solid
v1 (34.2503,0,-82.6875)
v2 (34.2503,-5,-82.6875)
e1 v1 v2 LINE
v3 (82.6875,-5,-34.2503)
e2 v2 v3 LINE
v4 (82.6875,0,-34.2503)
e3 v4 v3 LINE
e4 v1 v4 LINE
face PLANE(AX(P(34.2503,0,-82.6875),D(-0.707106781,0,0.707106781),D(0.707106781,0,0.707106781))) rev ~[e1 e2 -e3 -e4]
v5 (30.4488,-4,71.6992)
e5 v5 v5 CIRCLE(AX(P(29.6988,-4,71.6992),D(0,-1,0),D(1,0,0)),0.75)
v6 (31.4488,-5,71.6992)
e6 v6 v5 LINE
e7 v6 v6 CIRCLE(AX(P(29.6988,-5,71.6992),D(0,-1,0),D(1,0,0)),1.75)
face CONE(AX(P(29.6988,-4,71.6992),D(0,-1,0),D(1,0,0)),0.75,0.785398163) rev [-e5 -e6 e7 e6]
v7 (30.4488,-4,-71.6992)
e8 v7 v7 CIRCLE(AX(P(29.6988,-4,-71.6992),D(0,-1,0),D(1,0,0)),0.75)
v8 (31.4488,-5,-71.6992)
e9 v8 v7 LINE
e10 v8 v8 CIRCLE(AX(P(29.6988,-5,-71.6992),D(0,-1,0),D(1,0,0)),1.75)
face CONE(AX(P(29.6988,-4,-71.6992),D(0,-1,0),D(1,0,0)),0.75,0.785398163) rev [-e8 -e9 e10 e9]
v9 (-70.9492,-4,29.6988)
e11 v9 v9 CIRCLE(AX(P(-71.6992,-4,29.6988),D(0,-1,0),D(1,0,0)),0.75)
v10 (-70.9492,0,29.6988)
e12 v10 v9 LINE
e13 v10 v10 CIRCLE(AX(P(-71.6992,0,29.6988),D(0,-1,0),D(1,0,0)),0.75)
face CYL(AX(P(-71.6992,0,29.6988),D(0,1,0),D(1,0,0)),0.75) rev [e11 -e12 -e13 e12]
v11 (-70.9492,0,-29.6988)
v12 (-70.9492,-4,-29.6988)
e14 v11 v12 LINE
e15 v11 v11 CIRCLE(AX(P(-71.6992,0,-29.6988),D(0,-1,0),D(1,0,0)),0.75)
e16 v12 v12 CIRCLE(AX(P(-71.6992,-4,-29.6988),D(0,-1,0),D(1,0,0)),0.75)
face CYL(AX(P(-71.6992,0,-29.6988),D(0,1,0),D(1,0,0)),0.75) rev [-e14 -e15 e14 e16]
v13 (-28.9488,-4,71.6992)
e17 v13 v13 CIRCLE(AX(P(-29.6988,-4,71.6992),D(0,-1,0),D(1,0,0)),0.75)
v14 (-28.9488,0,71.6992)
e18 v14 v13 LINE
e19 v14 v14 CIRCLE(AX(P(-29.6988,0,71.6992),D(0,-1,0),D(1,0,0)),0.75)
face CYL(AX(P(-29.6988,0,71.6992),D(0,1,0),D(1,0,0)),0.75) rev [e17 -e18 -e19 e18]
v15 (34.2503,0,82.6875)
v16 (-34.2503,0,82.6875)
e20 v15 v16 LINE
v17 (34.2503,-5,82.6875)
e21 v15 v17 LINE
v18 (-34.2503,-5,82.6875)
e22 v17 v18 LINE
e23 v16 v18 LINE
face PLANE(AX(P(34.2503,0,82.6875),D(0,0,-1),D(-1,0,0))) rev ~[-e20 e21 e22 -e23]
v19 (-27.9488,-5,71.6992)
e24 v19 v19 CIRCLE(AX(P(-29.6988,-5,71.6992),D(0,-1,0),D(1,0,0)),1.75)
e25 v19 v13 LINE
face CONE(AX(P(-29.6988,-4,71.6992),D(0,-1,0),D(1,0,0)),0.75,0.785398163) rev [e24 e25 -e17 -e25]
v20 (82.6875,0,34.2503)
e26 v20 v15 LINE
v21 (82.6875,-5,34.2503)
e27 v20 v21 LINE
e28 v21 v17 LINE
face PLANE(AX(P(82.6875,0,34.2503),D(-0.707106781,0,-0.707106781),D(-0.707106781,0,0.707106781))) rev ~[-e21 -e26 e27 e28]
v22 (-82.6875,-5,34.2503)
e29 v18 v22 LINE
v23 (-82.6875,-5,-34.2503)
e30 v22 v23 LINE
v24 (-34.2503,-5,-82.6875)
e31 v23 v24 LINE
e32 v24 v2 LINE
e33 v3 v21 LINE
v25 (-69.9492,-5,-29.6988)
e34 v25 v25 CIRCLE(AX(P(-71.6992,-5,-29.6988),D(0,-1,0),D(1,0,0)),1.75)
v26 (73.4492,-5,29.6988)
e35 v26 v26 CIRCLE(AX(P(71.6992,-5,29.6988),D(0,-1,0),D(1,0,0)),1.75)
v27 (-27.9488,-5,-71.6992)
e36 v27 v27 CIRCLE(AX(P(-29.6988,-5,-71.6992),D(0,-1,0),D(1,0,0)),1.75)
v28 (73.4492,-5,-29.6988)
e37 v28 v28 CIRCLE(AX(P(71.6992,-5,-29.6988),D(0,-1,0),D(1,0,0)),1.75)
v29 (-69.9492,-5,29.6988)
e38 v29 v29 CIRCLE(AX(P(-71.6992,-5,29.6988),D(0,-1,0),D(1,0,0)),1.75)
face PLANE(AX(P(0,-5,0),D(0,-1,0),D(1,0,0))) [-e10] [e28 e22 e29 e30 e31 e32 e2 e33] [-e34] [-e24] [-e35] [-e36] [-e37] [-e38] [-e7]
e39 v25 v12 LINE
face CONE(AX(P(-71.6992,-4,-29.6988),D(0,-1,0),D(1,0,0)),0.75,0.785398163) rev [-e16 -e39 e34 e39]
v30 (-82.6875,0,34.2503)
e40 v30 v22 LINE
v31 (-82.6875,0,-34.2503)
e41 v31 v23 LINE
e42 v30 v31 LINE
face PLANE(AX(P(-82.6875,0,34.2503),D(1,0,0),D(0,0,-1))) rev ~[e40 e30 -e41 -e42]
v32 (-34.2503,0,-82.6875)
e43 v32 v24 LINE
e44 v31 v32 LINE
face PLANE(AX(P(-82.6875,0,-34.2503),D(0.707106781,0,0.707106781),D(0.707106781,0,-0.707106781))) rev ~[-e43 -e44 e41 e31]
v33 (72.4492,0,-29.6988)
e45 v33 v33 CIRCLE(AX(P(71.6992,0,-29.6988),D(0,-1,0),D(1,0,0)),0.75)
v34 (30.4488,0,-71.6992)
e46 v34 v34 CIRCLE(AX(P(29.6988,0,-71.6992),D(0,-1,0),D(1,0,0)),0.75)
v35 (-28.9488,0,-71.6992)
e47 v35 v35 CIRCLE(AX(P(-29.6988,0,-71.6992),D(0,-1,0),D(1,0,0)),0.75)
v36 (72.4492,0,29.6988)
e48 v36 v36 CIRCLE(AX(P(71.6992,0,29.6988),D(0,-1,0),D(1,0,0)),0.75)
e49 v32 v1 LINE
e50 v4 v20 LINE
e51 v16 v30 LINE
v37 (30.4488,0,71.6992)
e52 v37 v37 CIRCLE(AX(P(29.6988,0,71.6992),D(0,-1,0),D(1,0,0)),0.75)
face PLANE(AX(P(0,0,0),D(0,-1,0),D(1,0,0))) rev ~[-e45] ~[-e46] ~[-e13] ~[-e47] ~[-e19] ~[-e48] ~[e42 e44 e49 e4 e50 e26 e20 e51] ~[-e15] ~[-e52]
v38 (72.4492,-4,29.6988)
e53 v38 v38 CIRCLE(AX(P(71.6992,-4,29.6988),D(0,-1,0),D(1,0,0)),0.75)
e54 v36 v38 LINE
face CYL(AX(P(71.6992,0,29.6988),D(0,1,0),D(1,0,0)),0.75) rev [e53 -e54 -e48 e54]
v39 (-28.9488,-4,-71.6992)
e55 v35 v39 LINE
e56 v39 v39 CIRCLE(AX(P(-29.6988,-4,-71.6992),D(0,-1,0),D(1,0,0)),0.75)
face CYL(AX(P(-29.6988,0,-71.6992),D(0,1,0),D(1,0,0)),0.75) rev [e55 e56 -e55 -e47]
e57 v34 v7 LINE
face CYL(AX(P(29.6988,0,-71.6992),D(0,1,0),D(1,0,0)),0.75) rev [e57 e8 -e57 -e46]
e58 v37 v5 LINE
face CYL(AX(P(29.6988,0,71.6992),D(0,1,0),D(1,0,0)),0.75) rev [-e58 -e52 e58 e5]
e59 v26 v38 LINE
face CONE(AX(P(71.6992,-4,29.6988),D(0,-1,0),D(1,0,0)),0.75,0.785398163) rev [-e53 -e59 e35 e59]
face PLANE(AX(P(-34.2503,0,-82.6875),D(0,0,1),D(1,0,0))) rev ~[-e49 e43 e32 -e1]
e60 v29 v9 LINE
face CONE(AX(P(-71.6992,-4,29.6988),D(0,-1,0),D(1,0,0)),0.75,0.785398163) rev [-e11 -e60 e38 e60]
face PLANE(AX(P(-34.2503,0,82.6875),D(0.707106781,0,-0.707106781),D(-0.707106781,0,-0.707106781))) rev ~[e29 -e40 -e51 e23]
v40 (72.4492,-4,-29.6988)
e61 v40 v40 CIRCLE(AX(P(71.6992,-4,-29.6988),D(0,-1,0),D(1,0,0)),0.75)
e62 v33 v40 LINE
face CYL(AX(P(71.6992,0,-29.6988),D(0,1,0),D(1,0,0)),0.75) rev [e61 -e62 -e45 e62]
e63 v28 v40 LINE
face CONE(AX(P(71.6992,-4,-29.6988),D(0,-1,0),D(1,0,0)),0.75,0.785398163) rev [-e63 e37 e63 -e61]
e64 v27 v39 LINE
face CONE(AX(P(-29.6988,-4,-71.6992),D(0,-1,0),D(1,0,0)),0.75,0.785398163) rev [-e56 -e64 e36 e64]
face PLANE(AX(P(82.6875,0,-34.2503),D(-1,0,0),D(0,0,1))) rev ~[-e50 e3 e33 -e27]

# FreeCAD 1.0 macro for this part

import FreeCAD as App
import Part
import Sketcher
from FreeCAD import Vector


def edges_at(feature, points):
    """Names of the edges that pass closest to the given points."""
    edges = feature.Shape.Edges
    near = lambda p: min(range(len(edges)), key=lambda i: edges[i].distToShape(Part.Vertex(*p))[0])
    return sorted({f"Edge{near(p) + 1}" for p in points})


def add_polygon(sketch, points):
    """Adds a closed chain of lines whose ends are joined by coincident constraints."""
    first, n = sketch.GeometryCount, len(points)
    for a, b in zip(points, points[1:] + points[:1]):
        sketch.addGeometry(Part.LineSegment(App.Vector(*a, 0), App.Vector(*b, 0)), False)
    for i in range(n):
        sketch.addConstraint(Sketcher.Constraint("Coincident", first + i, 2, first + (i + 1) % n, 1))

doc = App.newDocument("Part")
params = doc.addObject("Spreadsheet::Sheet", "Params")
for row, (alias, value) in enumerate([
    ("sketch1_diameter", "1.5 mm"),
    ("pad1_length", "5 mm"),
    ("chamfer_size", "1 mm"),
], start=1):
    params.set(f"A{row}", alias)
    params.set(f"B{row}", "=" + value)
    params.setAlias(f"B{row}", alias)

body = doc.addObject("PartDesign::Body", "Body")

# Sketch on XZ plane
sketch1 = body.newObject("Sketcher::SketchObject", "Sketch")
sketch1.AttachmentSupport = (doc.getObject("XZ_Plane"), [""])
sketch1.MapMode = "FlatFace"
add_polygon(sketch1, [(-82.7, 34.3), (-82.7, -34.3), (-34.3, -82.7), (34.3, -82.7), (82.7, -34.3), (82.7, 34.3), (34.3, 82.7), (-34.3, 82.7)])  # lines 0-7
sketch1.addGeometry(Part.Circle(Vector(-29.7, -71.7, 0), Vector(0, 0, 1), 0.8), False)  # 8
sketch1.addGeometry(Part.Circle(Vector(-71.7, -29.7, 0), Vector(0, 0, 1), 0.8), False)  # 9
sketch1.addGeometry(Part.Circle(Vector(29.7, -71.7, 0), Vector(0, 0, 1), 0.8), False)  # 10
sketch1.addGeometry(Part.Circle(Vector(71.7, -29.7, 0), Vector(0, 0, 1), 0.8), False)  # 11
sketch1.addGeometry(Part.Circle(Vector(-71.7, 29.7, 0), Vector(0, 0, 1), 0.8), False)  # 12
sketch1.addGeometry(Part.Circle(Vector(-29.7, 71.7, 0), Vector(0, 0, 1), 0.8), False)  # 13
sketch1.addGeometry(Part.Circle(Vector(71.7, 29.7, 0), Vector(0, 0, 1), 0.8), False)  # 14
sketch1.addGeometry(Part.Circle(Vector(29.7, 71.7, 0), Vector(0, 0, 1), 0.8), False)  # 15
sketch1.addConstraint(Sketcher.Constraint("Vertical", 0))
sketch1.addConstraint(Sketcher.Constraint("Horizontal", 2))
sketch1.addConstraint(Sketcher.Constraint("Vertical", 4))
sketch1.addConstraint(Sketcher.Constraint("Horizontal", 6))
sketch1.addConstraint(Sketcher.Constraint("Equal", 8, 9))
sketch1.addConstraint(Sketcher.Constraint("Equal", 9, 10))
sketch1.addConstraint(Sketcher.Constraint("Equal", 10, 11))
sketch1.addConstraint(Sketcher.Constraint("Equal", 11, 12))
sketch1.addConstraint(Sketcher.Constraint("Equal", 12, 13))
sketch1.addConstraint(Sketcher.Constraint("Equal", 13, 14))
sketch1.addConstraint(Sketcher.Constraint("Equal", 14, 15))
sketch1.addConstraint(Sketcher.Constraint("Symmetric", 11, 3, 12, 3, -1, 1))
sketch1.addConstraint(Sketcher.Constraint("Symmetric", 10, 3, 13, 3, -1, 1))
sketch1.addConstraint(Sketcher.Constraint("Symmetric", 9, 3, 14, 3, -1, 1))
sketch1.addConstraint(Sketcher.Constraint("Symmetric", 8, 3, 15, 3, -1, 1))
sketch1.addConstraint(Sketcher.Constraint("Symmetric", 0, 2, 4, 2, -1, 1))
sketch1.addConstraint(Sketcher.Constraint("Symmetric", 1, 2, 5, 2, -1, 1))
sketch1.addConstraint(Sketcher.Constraint("Symmetric", 8, 3, 10, 3, -2))
sketch1.addConstraint(Sketcher.Constraint("Symmetric", 9, 3, 11, 3, -2))
sketch1.addConstraint(Sketcher.Constraint("Perpendicular", 1, 3))
sketch1.addConstraint(Sketcher.Constraint("Perpendicular", 5, 7))
sketch1.addConstraint(Sketcher.Constraint("Horizontal", 0, 2, 3, 2))
sketch1.addConstraint(Sketcher.Constraint("Horizontal", 4, 2, 7, 2))
sketch1.addConstraint(Sketcher.Constraint("Vertical", 2, 2, 5, 2))
sketch1.addConstraint(Sketcher.Constraint("Equal", 6, 0))
sketch1.addConstraint(Sketcher.Constraint("Diameter", 8, 1.5))
sketch1.addConstraint(Sketcher.Constraint("DistanceX", 2, 1, 2, 2, 68.5006))
sketch1.addConstraint(Sketcher.Constraint("DistanceX", 9, 3, 10, 3, 101.398))
sketch1.addConstraint(Sketcher.Constraint("DistanceY", 8, 3, 12, 3, 101.398))
sketch1.addConstraint(Sketcher.Constraint("DistanceY", 8, 3, 0, 2, 37.449))
sketch1.addConstraint(Sketcher.Constraint("DistanceX", 9, 3, 1, 2, 37.449))
sketch1.addConstraint(Sketcher.Constraint("Distance", 1, 68.5005))
sketch1.setExpression("Constraints[33]", "Params.sketch1_diameter")
pad1 = body.newObject("PartDesign::Pad", "Pad")
pad1.Profile = sketch1
pad1.setExpression("Length", "Params.pad1_length")
doc.recompute()

chamfer = body.newObject("PartDesign::Chamfer", "Chamfer")
chamfer.Base = (pad1, edges_at(pad1, [
    (-72.449, -5, -29.699),
    (-30.449, -5, -71.699),
    (28.949, -5, -71.699),
    (70.949, -5, -29.699),
    (70.949, -5, 29.699),
    (28.949, -5, 71.699),
    (-30.449, -5, 71.699),
    (-72.449, -5, 29.699),
]))
chamfer.setExpression("Size", "Params.chamfer_size")

doc.recompute()
